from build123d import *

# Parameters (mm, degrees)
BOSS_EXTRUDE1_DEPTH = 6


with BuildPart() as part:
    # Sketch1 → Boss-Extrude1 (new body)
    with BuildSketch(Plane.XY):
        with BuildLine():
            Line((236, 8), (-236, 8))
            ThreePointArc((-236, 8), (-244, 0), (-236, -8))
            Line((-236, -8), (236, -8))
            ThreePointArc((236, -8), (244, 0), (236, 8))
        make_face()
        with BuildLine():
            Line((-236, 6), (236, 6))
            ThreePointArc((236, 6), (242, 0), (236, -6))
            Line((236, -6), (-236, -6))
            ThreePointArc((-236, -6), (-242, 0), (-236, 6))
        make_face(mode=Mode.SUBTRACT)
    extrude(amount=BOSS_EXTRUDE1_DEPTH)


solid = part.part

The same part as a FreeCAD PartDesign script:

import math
import FreeCAD as App
import Part
import Sketcher

doc = App.newDocument("Part")
params = doc.addObject("Spreadsheet::Sheet", "Params")
for row, (alias, value) in enumerate([
    ("sketch1_radius", "8 mm"),
    ("sketch1_radius2", "6 mm"),
    ("sketch1_width", "472 mm"),
    ("pad1_length", "6 mm"),
], start=1):
    params.set(f"A{row}", alias)
    params.set(f"B{row}", "=" + value)
    params.setAlias(f"B{row}", alias)

body = doc.addObject("PartDesign::Body", "Body")

# Sketch on XY plane
sketch1 = body.newObject("Sketcher::SketchObject", "Sketch")
sketch1.AttachmentSupport = (doc.getObject("XY_Plane"), [""])
sketch1.MapMode = "FlatFace"
sketch1.addGeometry(Part.LineSegment(App.Vector(236, 8, 0), App.Vector(-236, 8, 0)), False)
sketch1.addGeometry(Part.ArcOfCircle(Part.Circle(App.Vector(-236, 0, 0), App.Vector(0, 0, 1), 8), math.radians(90), math.radians(270)), False)
sketch1.addGeometry(Part.LineSegment(App.Vector(-236, -8, 0), App.Vector(236, -8, 0)), False)
sketch1.addGeometry(Part.ArcOfCircle(Part.Circle(App.Vector(236, 0, 0), App.Vector(0, 0, 1), 8), math.radians(-90), math.radians(90)), False)
sketch1.addGeometry(Part.ArcOfCircle(Part.Circle(App.Vector(-236, 0, 0), App.Vector(0, 0, 1), 6), math.radians(90), math.radians(270)), False)
sketch1.addGeometry(Part.LineSegment(App.Vector(-236, 6, 0), App.Vector(236, 6, 0)), False)
sketch1.addGeometry(Part.ArcOfCircle(Part.Circle(App.Vector(236, 0, 0), App.Vector(0, 0, 1), 6), math.radians(-90), math.radians(90)), False)
sketch1.addGeometry(Part.LineSegment(App.Vector(236, -6, 0), App.Vector(-236, -6, 0)), False)
sketch1.addConstraint(Sketcher.Constraint("Tangent", 0, 2, 1, 1))
sketch1.addConstraint(Sketcher.Constraint("Tangent", 1, 2, 2, 1))
sketch1.addConstraint(Sketcher.Constraint("Tangent", 2, 2, 3, 1))
sketch1.addConstraint(Sketcher.Constraint("Tangent", 3, 2, 0, 1))
sketch1.addConstraint(Sketcher.Constraint("Tangent", 4, 1, 5, 1))
sketch1.addConstraint(Sketcher.Constraint("Tangent", 5, 2, 6, 2))
sketch1.addConstraint(Sketcher.Constraint("Tangent", 6, 1, 7, 1))
sketch1.addConstraint(Sketcher.Constraint("Tangent", 7, 2, 4, 2))
sketch1.addConstraint(Sketcher.Constraint("Horizontal", 0))
sketch1.addConstraint(Sketcher.Constraint("Horizontal", 2))
sketch1.addConstraint(Sketcher.Constraint("Horizontal", 5))
sketch1.addConstraint(Sketcher.Constraint("Horizontal", 7))
sketch1.addConstraint(Sketcher.Constraint("Coincident", 4, 3, 1, 3))
sketch1.addConstraint(Sketcher.Constraint("Symmetric", 1, 3, 3, 3, -1, 1))
sketch1.addConstraint(Sketcher.Constraint("Vertical", 6, 3, 2, 2))
sketch1.addConstraint(Sketcher.Constraint("Radius", 1, 8.0))
sketch1.addConstraint(Sketcher.Constraint("Radius", 4, 6.0))
sketch1.addConstraint(Sketcher.Constraint("DistanceX", 0, 2, 0, 1, 472.0))
sketch1.setExpression("Constraints[15]", "Params.sketch1_radius")
sketch1.setExpression("Constraints[16]", "Params.sketch1_radius2")
sketch1.setExpression("Constraints[17]", "Params.sketch1_width")
pad1 = body.newObject("PartDesign::Pad", "Pad")
pad1.Profile = sketch1
pad1.setExpression("Length", "Params.pad1_length")

doc.recompute()
